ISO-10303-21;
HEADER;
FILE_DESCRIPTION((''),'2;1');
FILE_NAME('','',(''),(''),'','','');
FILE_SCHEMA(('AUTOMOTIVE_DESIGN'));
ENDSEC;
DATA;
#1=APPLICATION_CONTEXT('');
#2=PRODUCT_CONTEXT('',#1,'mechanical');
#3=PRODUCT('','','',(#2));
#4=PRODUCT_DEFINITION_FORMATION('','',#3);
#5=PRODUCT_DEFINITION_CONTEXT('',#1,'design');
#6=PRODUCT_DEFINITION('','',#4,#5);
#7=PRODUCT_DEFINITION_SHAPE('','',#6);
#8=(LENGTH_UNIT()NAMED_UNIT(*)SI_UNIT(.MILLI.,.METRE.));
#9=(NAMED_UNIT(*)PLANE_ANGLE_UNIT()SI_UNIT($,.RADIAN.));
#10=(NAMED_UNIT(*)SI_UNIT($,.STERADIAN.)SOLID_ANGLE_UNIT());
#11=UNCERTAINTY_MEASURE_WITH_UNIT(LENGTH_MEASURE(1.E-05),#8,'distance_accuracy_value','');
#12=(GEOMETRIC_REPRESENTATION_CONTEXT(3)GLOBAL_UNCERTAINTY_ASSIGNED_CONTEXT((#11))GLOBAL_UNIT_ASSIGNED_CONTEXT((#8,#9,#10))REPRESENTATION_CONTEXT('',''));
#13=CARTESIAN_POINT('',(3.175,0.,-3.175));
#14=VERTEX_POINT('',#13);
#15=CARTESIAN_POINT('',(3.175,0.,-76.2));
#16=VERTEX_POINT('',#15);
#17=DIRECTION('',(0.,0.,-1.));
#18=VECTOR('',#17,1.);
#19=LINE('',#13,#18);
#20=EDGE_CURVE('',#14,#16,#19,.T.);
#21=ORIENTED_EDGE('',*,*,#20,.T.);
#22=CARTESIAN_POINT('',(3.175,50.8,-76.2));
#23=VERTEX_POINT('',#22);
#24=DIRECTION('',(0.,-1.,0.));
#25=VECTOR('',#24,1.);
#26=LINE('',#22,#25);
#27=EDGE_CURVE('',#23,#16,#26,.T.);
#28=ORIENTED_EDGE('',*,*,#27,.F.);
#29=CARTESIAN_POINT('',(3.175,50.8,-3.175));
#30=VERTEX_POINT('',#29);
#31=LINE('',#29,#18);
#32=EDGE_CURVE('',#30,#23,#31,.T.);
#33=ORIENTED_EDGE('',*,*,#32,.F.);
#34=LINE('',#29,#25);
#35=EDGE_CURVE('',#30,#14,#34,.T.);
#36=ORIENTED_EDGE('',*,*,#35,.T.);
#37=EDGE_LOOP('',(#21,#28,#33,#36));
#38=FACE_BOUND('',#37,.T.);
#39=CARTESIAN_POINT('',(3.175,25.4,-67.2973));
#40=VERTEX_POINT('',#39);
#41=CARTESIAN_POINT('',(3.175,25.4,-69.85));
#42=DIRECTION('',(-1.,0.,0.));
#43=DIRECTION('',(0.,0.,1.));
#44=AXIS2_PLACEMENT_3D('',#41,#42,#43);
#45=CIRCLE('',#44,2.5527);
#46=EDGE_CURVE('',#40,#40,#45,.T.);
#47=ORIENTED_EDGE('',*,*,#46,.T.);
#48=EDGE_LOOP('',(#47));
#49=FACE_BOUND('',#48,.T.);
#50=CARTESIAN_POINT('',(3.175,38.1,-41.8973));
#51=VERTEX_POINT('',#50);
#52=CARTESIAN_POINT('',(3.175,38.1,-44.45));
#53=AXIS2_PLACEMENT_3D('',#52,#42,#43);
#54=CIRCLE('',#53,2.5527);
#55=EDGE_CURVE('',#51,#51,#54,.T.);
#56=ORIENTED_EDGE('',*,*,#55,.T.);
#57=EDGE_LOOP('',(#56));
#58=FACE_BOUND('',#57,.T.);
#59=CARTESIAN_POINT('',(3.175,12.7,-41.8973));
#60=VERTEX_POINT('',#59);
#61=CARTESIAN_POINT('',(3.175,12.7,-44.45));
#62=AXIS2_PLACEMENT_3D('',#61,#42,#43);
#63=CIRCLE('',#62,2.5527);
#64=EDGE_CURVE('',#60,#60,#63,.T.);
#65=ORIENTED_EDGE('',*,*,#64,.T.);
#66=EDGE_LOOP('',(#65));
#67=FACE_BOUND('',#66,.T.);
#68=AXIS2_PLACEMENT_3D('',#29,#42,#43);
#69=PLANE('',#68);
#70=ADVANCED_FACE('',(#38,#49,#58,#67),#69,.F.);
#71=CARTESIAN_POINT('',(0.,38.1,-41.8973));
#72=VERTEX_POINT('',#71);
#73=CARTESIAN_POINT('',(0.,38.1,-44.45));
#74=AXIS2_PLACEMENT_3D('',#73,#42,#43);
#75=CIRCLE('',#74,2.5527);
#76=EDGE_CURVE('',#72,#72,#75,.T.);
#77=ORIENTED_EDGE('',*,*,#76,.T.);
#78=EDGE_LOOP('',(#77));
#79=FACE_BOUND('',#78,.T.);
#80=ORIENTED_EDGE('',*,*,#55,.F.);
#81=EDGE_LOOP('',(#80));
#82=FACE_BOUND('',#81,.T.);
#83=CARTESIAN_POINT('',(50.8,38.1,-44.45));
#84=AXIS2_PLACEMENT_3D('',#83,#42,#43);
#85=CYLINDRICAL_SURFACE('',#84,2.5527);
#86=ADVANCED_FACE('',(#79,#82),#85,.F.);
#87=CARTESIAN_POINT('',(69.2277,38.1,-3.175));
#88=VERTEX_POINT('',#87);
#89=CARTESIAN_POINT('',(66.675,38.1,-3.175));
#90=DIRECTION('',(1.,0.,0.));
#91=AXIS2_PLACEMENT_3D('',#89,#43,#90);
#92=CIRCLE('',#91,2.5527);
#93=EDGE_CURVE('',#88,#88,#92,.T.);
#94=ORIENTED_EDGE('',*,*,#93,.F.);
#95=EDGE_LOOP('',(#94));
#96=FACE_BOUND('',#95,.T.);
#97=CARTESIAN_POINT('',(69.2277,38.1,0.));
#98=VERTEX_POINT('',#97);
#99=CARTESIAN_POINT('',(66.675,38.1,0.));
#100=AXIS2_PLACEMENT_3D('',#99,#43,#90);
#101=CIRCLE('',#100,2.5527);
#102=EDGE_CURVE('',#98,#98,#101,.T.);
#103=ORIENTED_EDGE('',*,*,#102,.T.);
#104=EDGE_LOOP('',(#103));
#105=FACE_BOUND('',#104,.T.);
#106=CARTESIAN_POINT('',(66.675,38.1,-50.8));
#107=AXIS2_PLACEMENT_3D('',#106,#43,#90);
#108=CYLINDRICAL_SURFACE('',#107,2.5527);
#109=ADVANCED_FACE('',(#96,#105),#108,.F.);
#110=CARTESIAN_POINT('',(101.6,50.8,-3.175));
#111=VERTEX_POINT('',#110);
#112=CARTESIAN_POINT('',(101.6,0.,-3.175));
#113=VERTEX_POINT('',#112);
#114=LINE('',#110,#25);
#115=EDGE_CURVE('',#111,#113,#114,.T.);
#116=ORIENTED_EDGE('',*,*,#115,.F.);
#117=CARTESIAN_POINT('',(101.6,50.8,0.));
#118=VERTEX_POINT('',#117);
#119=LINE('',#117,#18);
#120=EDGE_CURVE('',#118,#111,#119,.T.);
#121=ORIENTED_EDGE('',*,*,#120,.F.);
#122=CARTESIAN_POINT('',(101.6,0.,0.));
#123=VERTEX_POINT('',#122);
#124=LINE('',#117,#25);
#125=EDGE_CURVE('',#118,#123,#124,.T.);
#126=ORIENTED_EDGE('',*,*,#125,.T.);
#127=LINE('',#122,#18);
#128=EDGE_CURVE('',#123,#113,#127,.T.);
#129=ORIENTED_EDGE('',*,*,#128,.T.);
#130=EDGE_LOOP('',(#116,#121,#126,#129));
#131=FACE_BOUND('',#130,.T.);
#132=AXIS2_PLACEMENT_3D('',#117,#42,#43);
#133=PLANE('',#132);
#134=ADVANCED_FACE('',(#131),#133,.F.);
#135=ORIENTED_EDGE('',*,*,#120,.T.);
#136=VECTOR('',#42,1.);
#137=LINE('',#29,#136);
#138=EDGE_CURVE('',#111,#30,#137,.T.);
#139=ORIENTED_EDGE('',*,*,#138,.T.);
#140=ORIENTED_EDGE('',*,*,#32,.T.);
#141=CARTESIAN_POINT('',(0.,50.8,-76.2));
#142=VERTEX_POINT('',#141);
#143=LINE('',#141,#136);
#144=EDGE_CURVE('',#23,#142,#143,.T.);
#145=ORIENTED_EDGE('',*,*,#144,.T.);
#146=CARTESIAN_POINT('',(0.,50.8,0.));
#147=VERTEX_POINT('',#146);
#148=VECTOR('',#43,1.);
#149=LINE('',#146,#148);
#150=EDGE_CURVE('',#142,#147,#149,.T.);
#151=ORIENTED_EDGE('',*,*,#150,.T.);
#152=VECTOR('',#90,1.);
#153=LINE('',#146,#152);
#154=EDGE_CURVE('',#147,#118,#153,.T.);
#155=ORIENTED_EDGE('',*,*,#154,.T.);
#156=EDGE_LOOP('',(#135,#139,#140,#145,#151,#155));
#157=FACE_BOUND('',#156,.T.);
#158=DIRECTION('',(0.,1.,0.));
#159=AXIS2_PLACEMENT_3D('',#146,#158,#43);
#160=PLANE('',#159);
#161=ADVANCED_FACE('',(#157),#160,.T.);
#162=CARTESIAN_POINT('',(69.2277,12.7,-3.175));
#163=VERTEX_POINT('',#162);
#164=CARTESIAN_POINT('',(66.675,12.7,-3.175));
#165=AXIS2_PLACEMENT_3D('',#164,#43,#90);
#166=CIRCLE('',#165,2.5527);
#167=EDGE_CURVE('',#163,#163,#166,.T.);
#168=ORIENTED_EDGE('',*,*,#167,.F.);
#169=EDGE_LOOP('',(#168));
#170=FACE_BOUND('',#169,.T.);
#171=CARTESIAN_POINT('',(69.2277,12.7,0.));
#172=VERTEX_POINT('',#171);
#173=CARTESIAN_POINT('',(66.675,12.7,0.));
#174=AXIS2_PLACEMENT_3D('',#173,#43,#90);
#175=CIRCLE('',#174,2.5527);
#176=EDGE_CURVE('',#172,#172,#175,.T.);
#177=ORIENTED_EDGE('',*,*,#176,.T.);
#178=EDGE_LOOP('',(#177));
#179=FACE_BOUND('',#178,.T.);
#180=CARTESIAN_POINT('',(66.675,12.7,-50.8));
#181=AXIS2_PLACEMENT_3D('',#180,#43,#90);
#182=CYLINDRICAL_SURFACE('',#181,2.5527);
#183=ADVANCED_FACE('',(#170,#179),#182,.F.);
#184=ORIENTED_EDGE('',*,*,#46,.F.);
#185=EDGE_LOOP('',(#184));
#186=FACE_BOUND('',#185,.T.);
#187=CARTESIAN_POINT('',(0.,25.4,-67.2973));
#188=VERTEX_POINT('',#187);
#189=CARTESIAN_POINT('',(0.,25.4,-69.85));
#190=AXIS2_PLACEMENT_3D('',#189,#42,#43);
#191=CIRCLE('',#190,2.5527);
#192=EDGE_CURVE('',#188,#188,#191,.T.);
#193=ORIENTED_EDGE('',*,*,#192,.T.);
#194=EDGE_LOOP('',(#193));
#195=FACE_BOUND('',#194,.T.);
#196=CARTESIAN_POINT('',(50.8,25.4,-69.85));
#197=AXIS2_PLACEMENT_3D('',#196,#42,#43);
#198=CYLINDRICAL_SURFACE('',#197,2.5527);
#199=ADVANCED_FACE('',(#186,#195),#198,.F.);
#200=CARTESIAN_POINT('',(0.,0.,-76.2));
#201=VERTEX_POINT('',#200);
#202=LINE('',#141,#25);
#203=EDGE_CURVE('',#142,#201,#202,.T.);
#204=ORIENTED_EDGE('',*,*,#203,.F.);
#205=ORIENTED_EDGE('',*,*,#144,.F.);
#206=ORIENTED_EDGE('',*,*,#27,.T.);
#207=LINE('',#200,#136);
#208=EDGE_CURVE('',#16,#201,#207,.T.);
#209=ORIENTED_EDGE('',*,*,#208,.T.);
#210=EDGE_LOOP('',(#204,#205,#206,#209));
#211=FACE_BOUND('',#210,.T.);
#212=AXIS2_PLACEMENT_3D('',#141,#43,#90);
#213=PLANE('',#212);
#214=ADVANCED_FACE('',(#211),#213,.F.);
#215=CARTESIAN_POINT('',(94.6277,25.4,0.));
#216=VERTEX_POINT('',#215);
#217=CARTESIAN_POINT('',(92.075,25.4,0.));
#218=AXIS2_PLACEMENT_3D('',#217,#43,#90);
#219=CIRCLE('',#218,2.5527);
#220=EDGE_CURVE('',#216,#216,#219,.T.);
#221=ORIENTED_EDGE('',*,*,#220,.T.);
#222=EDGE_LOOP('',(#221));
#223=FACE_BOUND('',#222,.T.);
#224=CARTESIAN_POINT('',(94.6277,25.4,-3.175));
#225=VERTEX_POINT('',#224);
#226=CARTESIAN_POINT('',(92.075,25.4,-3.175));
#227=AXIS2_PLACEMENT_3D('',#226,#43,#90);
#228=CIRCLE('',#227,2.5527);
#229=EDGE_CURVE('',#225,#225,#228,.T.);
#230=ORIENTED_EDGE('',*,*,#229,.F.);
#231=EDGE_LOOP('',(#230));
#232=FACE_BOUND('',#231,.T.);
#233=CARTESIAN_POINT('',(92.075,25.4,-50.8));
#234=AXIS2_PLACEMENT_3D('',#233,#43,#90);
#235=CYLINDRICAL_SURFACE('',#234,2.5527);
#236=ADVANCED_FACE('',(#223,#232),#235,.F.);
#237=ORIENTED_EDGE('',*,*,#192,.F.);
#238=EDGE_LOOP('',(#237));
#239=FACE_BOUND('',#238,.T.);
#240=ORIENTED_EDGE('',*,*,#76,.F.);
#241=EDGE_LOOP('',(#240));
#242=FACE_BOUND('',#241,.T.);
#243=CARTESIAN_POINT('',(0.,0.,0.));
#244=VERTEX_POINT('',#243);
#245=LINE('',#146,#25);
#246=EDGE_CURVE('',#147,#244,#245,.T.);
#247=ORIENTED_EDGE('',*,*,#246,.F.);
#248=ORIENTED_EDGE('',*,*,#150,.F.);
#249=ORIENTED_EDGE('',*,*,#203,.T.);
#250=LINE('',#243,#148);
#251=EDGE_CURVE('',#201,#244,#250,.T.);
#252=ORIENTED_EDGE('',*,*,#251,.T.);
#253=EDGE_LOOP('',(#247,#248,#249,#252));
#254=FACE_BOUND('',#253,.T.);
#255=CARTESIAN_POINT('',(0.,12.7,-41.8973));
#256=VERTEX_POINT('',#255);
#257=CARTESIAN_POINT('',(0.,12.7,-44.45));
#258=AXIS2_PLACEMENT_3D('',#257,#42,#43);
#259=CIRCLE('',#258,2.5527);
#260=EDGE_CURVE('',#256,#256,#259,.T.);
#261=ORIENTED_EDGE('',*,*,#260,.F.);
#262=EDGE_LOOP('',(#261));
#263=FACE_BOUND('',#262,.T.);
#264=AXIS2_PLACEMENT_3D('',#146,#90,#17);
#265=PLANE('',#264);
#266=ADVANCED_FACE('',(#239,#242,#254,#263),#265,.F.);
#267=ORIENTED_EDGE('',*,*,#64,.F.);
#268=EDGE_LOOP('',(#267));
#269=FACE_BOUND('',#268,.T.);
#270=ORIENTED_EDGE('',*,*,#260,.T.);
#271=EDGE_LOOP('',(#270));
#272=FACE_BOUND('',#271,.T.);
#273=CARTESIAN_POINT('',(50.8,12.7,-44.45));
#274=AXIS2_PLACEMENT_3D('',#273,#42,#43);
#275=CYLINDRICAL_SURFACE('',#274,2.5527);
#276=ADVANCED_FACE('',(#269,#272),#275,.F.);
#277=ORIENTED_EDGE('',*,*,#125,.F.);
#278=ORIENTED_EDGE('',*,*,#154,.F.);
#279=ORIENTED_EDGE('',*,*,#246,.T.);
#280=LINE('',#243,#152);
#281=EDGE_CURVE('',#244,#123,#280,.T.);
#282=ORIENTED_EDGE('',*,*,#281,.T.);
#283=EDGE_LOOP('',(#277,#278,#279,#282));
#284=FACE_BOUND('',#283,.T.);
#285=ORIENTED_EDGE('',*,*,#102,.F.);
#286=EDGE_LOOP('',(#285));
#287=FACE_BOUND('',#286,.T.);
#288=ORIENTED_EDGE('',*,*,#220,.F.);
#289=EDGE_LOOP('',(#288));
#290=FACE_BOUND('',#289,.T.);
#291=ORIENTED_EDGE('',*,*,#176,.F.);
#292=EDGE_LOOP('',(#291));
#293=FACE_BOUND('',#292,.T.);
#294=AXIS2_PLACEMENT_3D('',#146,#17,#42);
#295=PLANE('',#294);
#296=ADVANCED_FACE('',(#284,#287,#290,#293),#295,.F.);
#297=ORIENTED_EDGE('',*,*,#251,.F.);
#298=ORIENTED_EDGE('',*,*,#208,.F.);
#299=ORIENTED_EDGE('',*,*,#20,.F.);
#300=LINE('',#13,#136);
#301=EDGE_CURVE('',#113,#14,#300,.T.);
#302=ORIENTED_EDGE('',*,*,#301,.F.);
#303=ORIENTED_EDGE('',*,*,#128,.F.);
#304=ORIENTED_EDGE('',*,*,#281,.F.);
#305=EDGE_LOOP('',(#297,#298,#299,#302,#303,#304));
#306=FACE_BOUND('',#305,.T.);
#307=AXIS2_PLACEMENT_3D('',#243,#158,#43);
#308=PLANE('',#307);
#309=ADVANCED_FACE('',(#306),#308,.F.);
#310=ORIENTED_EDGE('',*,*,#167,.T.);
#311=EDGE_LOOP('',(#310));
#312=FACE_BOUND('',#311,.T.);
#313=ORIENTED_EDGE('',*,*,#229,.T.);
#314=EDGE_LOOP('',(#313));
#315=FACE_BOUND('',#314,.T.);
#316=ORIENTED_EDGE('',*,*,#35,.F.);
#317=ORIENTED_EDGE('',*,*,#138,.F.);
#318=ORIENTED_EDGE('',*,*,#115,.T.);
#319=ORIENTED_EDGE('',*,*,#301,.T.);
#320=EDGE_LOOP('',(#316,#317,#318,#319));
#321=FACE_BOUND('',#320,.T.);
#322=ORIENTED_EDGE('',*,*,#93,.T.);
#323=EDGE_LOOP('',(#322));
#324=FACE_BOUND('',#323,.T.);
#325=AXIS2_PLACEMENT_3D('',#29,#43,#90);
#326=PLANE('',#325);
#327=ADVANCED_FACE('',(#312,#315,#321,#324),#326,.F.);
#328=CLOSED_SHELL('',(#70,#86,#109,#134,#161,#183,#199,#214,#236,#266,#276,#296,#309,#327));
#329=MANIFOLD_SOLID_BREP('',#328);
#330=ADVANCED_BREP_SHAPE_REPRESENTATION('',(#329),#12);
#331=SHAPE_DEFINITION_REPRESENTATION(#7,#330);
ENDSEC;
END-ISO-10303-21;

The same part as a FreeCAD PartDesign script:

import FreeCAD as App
import Part
import Sketcher

V = App.Vector
Q = App.Units.Quantity


def add_polygon(sketch, points):
    """Adds a closed chain of lines whose ends are joined by coincident constraints."""
    first, n = sketch.GeometryCount, len(points)
    for a, b in zip(points, points[1:] + points[:1]):
        sketch.addGeometry(Part.LineSegment(App.Vector(*a, 0), App.Vector(*b, 0)), False)
    for i in range(n):
        sketch.addConstraint(Sketcher.Constraint("Coincident", first + i, 2, first + (i + 1) % n, 1))

doc = App.newDocument("Part")
body = doc.addObject("PartDesign::Body", "Body")

# Sketch on XZ plane
sketch1 = body.newObject("Sketcher::SketchObject", "Sketch")
sketch1.AttachmentSupport = (doc.getObject("XZ_Plane"), [""])
sketch1.MapMode = "FlatFace"
add_polygon(sketch1, [(0, -76.2), (0, 0), (101.6, 0), (101.6, -3.175), (3.175, -3.175), (3.175, -76.2)])  # lines 0-5
sketch1.addConstraint([
    Sketcher.Constraint("Vertical", 0),
    Sketcher.Constraint("Horizontal", 1),
    Sketcher.Constraint("Vertical", 2),
    Sketcher.Constraint("Horizontal", 3),
    Sketcher.Constraint("Vertical", 4),
    Sketcher.Constraint("Horizontal", 5),
    Sketcher.Constraint("Coincident", 0, 2, -1, 1),
    Sketcher.Constraint("Equal", 5, 2),
    Sketcher.Constraint("DistanceX", 1, 1, 1, 2, Q("4 in")),
    Sketcher.Constraint("DistanceY", 0, 1, 0, 2, Q("3 in")),
    Sketcher.Constraint("DistanceX", 3, 2, 3, 1, Q("3.875 in")),
])
pad1 = body.newObject("PartDesign::Pad", "Pad")
pad1.Profile = sketch1
pad1.Length = Q("2 in")
pad1.Reversed = True

# Sketch on XY plane
sketch2 = body.newObject("Sketcher::SketchObject", "Sketch001")
sketch2.AttachmentSupport = (doc.getObject("XY_Plane"), [""])
sketch2.MapMode = "FlatFace"
sketch2.addGeometry([
    Part.Circle(V(92.075, 25.4, 0), V(0, 0, 1), 2.5527),
    Part.Circle(V(66.675, 38.1, 0), V(0, 0, 1), 2.5527),
    Part.Circle(V(66.675, 12.7, 0), V(0, 0, 1), 2.5527),
], False)
sketch2.addConstraint([
    Sketcher.Constraint("Equal", 0, 1),
    Sketcher.Constraint("Equal", 1, 2),
    Sketcher.Constraint("Vertical", 1, 3, 2, 3),
    Sketcher.Constraint("Diameter", 0, Q("0.201 in")),
    Sketcher.Constraint("DistanceY", -1, 1, 0, 3, Q("1 in")),
    Sketcher.Constraint("DistanceX", 1, 3, 0, 3, Q("1 in")),
    Sketcher.Constraint("DistanceY", 2, 3, 1, 3, Q("1 in")),
    Sketcher.Constraint("DistanceY", -1, 1, 1, 3, Q("1.5 in")),
    Sketcher.Constraint("DistanceX", -1, 1, 0, 3, Q("3.625 in")),
])
pocket1 = body.newObject("PartDesign::Pocket", "Pocket")
pocket1.Profile = sketch2
pocket1.Length = Q("2 in")

# Sketch on YZ plane
sketch3 = body.newObject("Sketcher::SketchObject", "Sketch002")
sketch3.AttachmentSupport = (doc.getObject("YZ_Plane"), [""])
sketch3.MapMode = "FlatFace"
sketch3.addGeometry([
    Part.Circle(V(25.4, -69.85, 0), V(0, 0, 1), 2.5527),
    Part.Circle(V(38.1, -44.45, 0), V(0, 0, 1), 2.5527),
    Part.Circle(V(12.7, -44.45, 0), V(0, 0, 1), 2.5527),
], False)
sketch3.addConstraint([
    Sketcher.Constraint("Equal", 0, 1),
    Sketcher.Constraint("Equal", 1, 2),
    Sketcher.Constraint("Horizontal", 1, 3, 2, 3),
    Sketcher.Constraint("Diameter", 0, Q("0.201 in")),
    Sketcher.Constraint("DistanceX", -1, 1, 0, 3, Q("1 in")),
    Sketcher.Constraint("DistanceY", 0, 3, 1, 3, Q("1 in")),
    Sketcher.Constraint("DistanceX", 2, 3, 1, 3, Q("1 in")),
    Sketcher.Constraint("DistanceX", -1, 1, 1, 3, Q("1.5 in")),
    Sketcher.Constraint("DistanceY", 0, 3, -1, 1, Q("2.75 in")),
])
pocket2 = body.newObject("PartDesign::Pocket", "Pocket001")
pocket2.Profile = sketch3
pocket2.Length = Q("2 in")
pocket2.Reversed = True

doc.recompute()
